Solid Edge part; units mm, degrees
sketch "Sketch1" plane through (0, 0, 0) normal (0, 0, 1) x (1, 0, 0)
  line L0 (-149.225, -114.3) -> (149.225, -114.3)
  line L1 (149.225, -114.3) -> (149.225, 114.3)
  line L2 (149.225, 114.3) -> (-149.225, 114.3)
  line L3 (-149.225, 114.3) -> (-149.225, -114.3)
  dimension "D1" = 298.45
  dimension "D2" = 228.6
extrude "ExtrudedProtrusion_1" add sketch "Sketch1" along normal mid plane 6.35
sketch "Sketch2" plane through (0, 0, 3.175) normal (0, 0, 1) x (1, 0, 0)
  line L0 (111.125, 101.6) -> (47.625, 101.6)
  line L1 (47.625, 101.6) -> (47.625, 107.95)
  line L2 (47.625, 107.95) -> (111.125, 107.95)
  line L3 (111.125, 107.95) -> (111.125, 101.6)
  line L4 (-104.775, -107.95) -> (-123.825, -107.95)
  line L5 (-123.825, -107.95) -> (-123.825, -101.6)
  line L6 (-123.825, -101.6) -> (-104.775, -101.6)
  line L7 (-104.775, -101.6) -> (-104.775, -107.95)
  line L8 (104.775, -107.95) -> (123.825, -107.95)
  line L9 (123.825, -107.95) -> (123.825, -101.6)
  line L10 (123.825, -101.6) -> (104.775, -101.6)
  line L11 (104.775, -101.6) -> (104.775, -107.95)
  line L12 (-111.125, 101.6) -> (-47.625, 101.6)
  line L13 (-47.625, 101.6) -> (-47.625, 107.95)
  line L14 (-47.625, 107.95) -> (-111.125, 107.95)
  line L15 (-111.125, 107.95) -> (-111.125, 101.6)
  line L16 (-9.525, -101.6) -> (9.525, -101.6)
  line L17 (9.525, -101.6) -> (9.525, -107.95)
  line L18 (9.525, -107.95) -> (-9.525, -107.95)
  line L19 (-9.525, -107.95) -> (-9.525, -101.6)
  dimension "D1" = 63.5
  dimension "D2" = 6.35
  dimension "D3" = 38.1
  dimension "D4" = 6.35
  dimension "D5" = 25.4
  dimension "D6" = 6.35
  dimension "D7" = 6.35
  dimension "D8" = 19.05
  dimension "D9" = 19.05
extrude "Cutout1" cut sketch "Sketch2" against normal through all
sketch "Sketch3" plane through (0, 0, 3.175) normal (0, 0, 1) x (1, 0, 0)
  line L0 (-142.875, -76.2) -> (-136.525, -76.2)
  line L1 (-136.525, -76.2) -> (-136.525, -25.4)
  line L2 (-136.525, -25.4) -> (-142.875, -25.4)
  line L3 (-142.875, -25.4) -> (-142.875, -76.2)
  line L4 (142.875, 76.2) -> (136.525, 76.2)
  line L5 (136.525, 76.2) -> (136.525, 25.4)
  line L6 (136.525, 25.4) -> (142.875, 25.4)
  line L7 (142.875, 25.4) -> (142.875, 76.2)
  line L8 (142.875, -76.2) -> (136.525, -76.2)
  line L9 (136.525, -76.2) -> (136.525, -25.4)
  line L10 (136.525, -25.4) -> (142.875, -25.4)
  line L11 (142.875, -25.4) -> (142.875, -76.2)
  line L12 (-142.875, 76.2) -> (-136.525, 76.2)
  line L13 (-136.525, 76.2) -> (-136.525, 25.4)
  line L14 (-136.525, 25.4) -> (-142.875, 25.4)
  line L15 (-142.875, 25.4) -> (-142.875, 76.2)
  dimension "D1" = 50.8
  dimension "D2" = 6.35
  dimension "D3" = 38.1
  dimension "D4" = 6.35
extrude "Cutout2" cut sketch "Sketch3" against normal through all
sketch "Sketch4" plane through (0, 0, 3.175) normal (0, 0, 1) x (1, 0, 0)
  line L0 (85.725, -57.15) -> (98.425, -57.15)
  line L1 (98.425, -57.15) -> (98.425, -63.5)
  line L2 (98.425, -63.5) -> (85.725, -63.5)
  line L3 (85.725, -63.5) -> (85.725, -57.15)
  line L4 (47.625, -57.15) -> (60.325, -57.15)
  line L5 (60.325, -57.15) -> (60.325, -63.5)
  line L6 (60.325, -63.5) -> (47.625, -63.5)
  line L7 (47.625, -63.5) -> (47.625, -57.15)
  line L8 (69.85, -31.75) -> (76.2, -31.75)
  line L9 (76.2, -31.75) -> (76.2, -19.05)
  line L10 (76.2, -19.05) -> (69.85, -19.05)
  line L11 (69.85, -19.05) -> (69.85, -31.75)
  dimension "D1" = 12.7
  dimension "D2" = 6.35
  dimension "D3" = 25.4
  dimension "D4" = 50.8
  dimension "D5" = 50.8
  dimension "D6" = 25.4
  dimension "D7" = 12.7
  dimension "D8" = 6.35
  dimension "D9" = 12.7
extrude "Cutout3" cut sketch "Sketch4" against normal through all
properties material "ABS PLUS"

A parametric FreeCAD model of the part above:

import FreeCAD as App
import Part
import Sketcher
from FreeCAD import Vector
Q = App.Units.Quantity

doc = App.newDocument("Part")
body = doc.addObject("PartDesign::Body", "Body")

sketch1 = body.newObject("Sketcher::SketchObject", "Sketch")
sketch1.AttachmentSupport = (doc.getObject("XY_Plane"), [""])
sketch1.MapMode = "FlatFace"
sketch1.addGeometry([
    Part.LineSegment(Vector(-149, 114, 0), Vector(-149, -114, 0)),
    Part.LineSegment(Vector(-149, -114, 0), Vector(149, -114, 0)),
    Part.LineSegment(Vector(149, -114, 0), Vector(149, 114, 0)),
    Part.LineSegment(Vector(149, 114, 0), Vector(-149, 114, 0)),
], False)
sketch1.addConstraint([
    Sketcher.Constraint("Coincident", 0, 2, 1, 1),
    Sketcher.Constraint("Coincident", 1, 2, 2, 1),
    Sketcher.Constraint("Coincident", 2, 2, 3, 1),
    Sketcher.Constraint("Coincident", 3, 2, 0, 1),
    Sketcher.Constraint("Vertical", 0),
    Sketcher.Constraint("Horizontal", 1),
    Sketcher.Constraint("Vertical", 2),
    Sketcher.Constraint("Horizontal", 3),
    Sketcher.Constraint("Symmetric", 0, 2, 2, 2, -1, 1),
    Sketcher.Constraint("DistanceY", 0, 2, 0, 1, Q("9 in")),
    Sketcher.Constraint("DistanceX", 0, 2, -1, 1, Q("5.875 in")),
])
pad1 = body.newObject("PartDesign::Pad", "Pad")
pad1.Profile = sketch1
pad1.Length = Q("0.25 in")
pad1.Midplane = True

sketch2 = body.newObject("Sketcher::SketchObject", "Sketch001")
sketch2.AttachmentSupport = (doc.getObject("XY_Plane"), [""])
sketch2.MapMode = "FlatFace"
sketch2.AttachmentOffset = App.Placement(Vector(0, 0, 0.125 * 25.4), App.Rotation())
sketch2.addGeometry([
    Part.LineSegment(Vector(48, 102, 0), Vector(111, 102, 0)),
    Part.LineSegment(Vector(111, 102, 0), Vector(111, 108, 0)),
    Part.LineSegment(Vector(111, 108, 0), Vector(48, 108, 0)),
    Part.LineSegment(Vector(48, 108, 0), Vector(48, 102, 0)),
    Part.LineSegment(Vector(-124, -108, 0), Vector(-105, -108, 0)),
    Part.LineSegment(Vector(-105, -108, 0), Vector(-105, -102, 0)),
    Part.LineSegment(Vector(-105, -102, 0), Vector(-124, -102, 0)),
    Part.LineSegment(Vector(-124, -102, 0), Vector(-124, -108, 0)),
    Part.LineSegment(Vector(105, -102, 0), Vector(105, -108, 0)),
    Part.LineSegment(Vector(105, -108, 0), Vector(124, -108, 0)),
    Part.LineSegment(Vector(124, -108, 0), Vector(124, -102, 0)),
    Part.LineSegment(Vector(124, -102, 0), Vector(105, -102, 0)),
    Part.LineSegment(Vector(-111, 108, 0), Vector(-111, 102, 0)),
    Part.LineSegment(Vector(-111, 102, 0), Vector(-48, 102, 0)),
    Part.LineSegment(Vector(-48, 102, 0), Vector(-48, 108, 0)),
    Part.LineSegment(Vector(-48, 108, 0), Vector(-111, 108, 0)),
    Part.LineSegment(Vector(10, -102, 0), Vector(-10, -102, 0)),
    Part.LineSegment(Vector(-10, -102, 0), Vector(-10, -108, 0)),
    Part.LineSegment(Vector(-10, -108, 0), Vector(10, -108, 0)),
    Part.LineSegment(Vector(10, -108, 0), Vector(10, -102, 0)),
], False)
sketch2.addConstraint([
    Sketcher.Constraint("Coincident", 0, 2, 1, 1),
    Sketcher.Constraint("Coincident", 1, 2, 2, 1),
    Sketcher.Constraint("Coincident", 2, 2, 3, 1),
    Sketcher.Constraint("Coincident", 3, 2, 0, 1),
    Sketcher.Constraint("Coincident", 4, 2, 5, 1),
    Sketcher.Constraint("Coincident", 5, 2, 6, 1),
    Sketcher.Constraint("Coincident", 6, 2, 7, 1),
    Sketcher.Constraint("Coincident", 7, 2, 4, 1),
    Sketcher.Constraint("Coincident", 8, 2, 9, 1),
    Sketcher.Constraint("Coincident", 9, 2, 10, 1),
    Sketcher.Constraint("Coincident", 10, 2, 11, 1),
    Sketcher.Constraint("Coincident", 11, 2, 8, 1),
    Sketcher.Constraint("Coincident", 12, 2, 13, 1),
    Sketcher.Constraint("Coincident", 13, 2, 14, 1),
    Sketcher.Constraint("Coincident", 14, 2, 15, 1),
    Sketcher.Constraint("Coincident", 15, 2, 12, 1),
    Sketcher.Constraint("Coincident", 16, 2, 17, 1),
    Sketcher.Constraint("Coincident", 17, 2, 18, 1),
    Sketcher.Constraint("Coincident", 18, 2, 19, 1),
    Sketcher.Constraint("Coincident", 19, 2, 16, 1),
    Sketcher.Constraint("Horizontal", 0),
    Sketcher.Constraint("Vertical", 1),
    Sketcher.Constraint("Horizontal", 2),
    Sketcher.Constraint("Vertical", 3),
    Sketcher.Constraint("Horizontal", 4),
    Sketcher.Constraint("Vertical", 5),
    Sketcher.Constraint("Horizontal", 6),
    Sketcher.Constraint("Vertical", 7),
    Sketcher.Constraint("Vertical", 8),
    Sketcher.Constraint("Horizontal", 9),
    Sketcher.Constraint("Vertical", 10),
    Sketcher.Constraint("Horizontal", 11),
    Sketcher.Constraint("Vertical", 12),
    Sketcher.Constraint("Horizontal", 13),
    Sketcher.Constraint("Vertical", 14),
    Sketcher.Constraint("Horizontal", 15),
    Sketcher.Constraint("Horizontal", 16),
    Sketcher.Constraint("Vertical", 17),
    Sketcher.Constraint("Horizontal", 18),
    Sketcher.Constraint("Vertical", 19),
    Sketcher.Constraint("Symmetric", 4, 2, 8, 2, -2),
    Sketcher.Constraint("Symmetric", 6, 2, 10, 2, -2),
    Sketcher.Constraint("Symmetric", 0, 2, 12, 2, -2),
    Sketcher.Constraint("Symmetric", 2, 2, 14, 2, -2),
    Sketcher.Constraint("Horizontal", 11, 2, 16, 2),
    Sketcher.Constraint("Horizontal", 9, 2, 17, 2),
    Sketcher.Constraint("Equal", 11, 16),
    Sketcher.Constraint("Equal", 3, 5),
    Sketcher.Constraint("DistanceX", 0, 1, 0, 2, Q("2.5 in")),
    Sketcher.Constraint("DistanceX", -1, 1, 0, 2, Q("4.375 in")),
    Sketcher.Constraint("DistanceX", 4, 2, -1, 1, Q("4.125 in")),
    Sketcher.Constraint("DistanceX", 6, 2, -1, 1, Q("4.875 in")),
    Sketcher.Constraint("DistanceY", -1, 1, 0, 2, Q("4 in")),
    Sketcher.Constraint("DistanceY", 5, 2, -1, 1, Q("4 in")),
    Sketcher.Constraint("DistanceY", 1, 1, 1, 2, Q("0.25 in")),
    Sketcher.Constraint("DistanceX", 6, 2, 16, 2, Q("4.5 in")),
])
pocket1 = body.newObject("PartDesign::Pocket", "Pocket")
pocket1.Profile = sketch2
pocket1.Type = "ThroughAll"

sketch3 = body.newObject("Sketcher::SketchObject", "Sketch002")
sketch3.AttachmentSupport = (doc.getObject("XY_Plane"), [""])
sketch3.MapMode = "FlatFace"
sketch3.AttachmentOffset = App.Placement(Vector(0, 0, 0.125 * 25.4), App.Rotation())
sketch3.addGeometry([
    Part.LineSegment(Vector(-143, -25, 0), Vector(-143, -76, 0)),
    Part.LineSegment(Vector(-143, -76, 0), Vector(-137, -76, 0)),
    Part.LineSegment(Vector(-137, -76, 0), Vector(-137, -25, 0)),
    Part.LineSegment(Vector(-137, -25, 0), Vector(-143, -25, 0)),
    Part.LineSegment(Vector(143, 25, 0), Vector(143, 76, 0)),
    Part.LineSegment(Vector(143, 76, 0), Vector(137, 76, 0)),
    Part.LineSegment(Vector(137, 76, 0), Vector(137, 25, 0)),
    Part.LineSegment(Vector(137, 25, 0), Vector(143, 25, 0)),
    Part.LineSegment(Vector(137, -76, 0), Vector(143, -76, 0)),
    Part.LineSegment(Vector(143, -76, 0), Vector(143, -25, 0)),
    Part.LineSegment(Vector(143, -25, 0), Vector(137, -25, 0)),
    Part.LineSegment(Vector(137, -25, 0), Vector(137, -76, 0)),
    Part.LineSegment(Vector(-137, 76, 0), Vector(-143, 76, 0)),
    Part.LineSegment(Vector(-143, 76, 0), Vector(-143, 25, 0)),
    Part.LineSegment(Vector(-143, 25, 0), Vector(-137, 25, 0)),
    Part.LineSegment(Vector(-137, 25, 0), Vector(-137, 76, 0)),
], False)
sketch3.addConstraint([
    Sketcher.Constraint("Coincident", 0, 2, 1, 1),
    Sketcher.Constraint("Coincident", 1, 2, 2, 1),
    Sketcher.Constraint("Coincident", 2, 2, 3, 1),
    Sketcher.Constraint("Coincident", 3, 2, 0, 1),
    Sketcher.Constraint("Coincident", 4, 2, 5, 1),
    Sketcher.Constraint("Coincident", 5, 2, 6, 1),
    Sketcher.Constraint("Coincident", 6, 2, 7, 1),
    Sketcher.Constraint("Coincident", 7, 2, 4, 1),
    Sketcher.Constraint("Coincident", 8, 2, 9, 1),
    Sketcher.Constraint("Coincident", 9, 2, 10, 1),
    Sketcher.Constraint("Coincident", 10, 2, 11, 1),
    Sketcher.Constraint("Coincident", 11, 2, 8, 1),
    Sketcher.Constraint("Coincident", 12, 2, 13, 1),
    Sketcher.Constraint("Coincident", 13, 2, 14, 1),
    Sketcher.Constraint("Coincident", 14, 2, 15, 1),
    Sketcher.Constraint("Coincident", 15, 2, 12, 1),
    Sketcher.Constraint("Vertical", 0),
    Sketcher.Constraint("Horizontal", 1),
    Sketcher.Constraint("Vertical", 2),
    Sketcher.Constraint("Horizontal", 3),
    Sketcher.Constraint("Vertical", 4),
    Sketcher.Constraint("Horizontal", 5),
    Sketcher.Constraint("Vertical", 6),
    Sketcher.Constraint("Horizontal", 7),
    Sketcher.Constraint("Horizontal", 8),
    Sketcher.Constraint("Vertical", 9),
    Sketcher.Constraint("Horizontal", 10),
    Sketcher.Constraint("Vertical", 11),
    Sketcher.Constraint("Horizontal", 12),
    Sketcher.Constraint("Vertical", 13),
    Sketcher.Constraint("Horizontal", 14),
    Sketcher.Constraint("Vertical", 15),
    Sketcher.Constraint("Symmetric", 0, 2, 4, 2, -1, 1),
    Sketcher.Constraint("Symmetric", 2, 2, 6, 2, -1, 1),
    Sketcher.Constraint("Symmetric", 8, 2, 12, 2, -1, 1),
    Sketcher.Constraint("Symmetric", 10, 2, 14, 2, -1, 1),
    Sketcher.Constraint("Symmetric", 0, 2, 8, 2, -2),
    Sketcher.Constraint("Symmetric", 2, 2, 10, 2, -2),
    Sketcher.Constraint("DistanceY", 0, 2, 0, 1, Q("2 in")),
    Sketcher.Constraint("DistanceX", 0, 2, -1, 1, Q("5.625 in")),
    Sketcher.Constraint("DistanceY", 0, 2, -1, 1, Q("3 in")),
    Sketcher.Constraint("DistanceX", 2, 2, 4, 2, Q("11 in")),
])
pocket2 = body.newObject("PartDesign::Pocket", "Pocket001")
pocket2.Profile = sketch3
pocket2.Type = "ThroughAll"

sketch4 = body.newObject("Sketcher::SketchObject", "Sketch003")
sketch4.AttachmentSupport = (doc.getObject("XY_Plane"), [""])
sketch4.MapMode = "FlatFace"
sketch4.AttachmentOffset = App.Placement(Vector(0, 0, 0.125 * 25.4), App.Rotation())
sketch4.addGeometry([
    Part.LineSegment(Vector(98, -57, 0), Vector(86, -57, 0)),
    Part.LineSegment(Vector(86, -57, 0), Vector(86, -64, 0)),
    Part.LineSegment(Vector(86, -64, 0), Vector(98, -64, 0)),
    Part.LineSegment(Vector(98, -64, 0), Vector(98, -57, 0)),
    Part.LineSegment(Vector(60, -57, 0), Vector(48, -57, 0)),
    Part.LineSegment(Vector(48, -57, 0), Vector(48, -64, 0)),
    Part.LineSegment(Vector(48, -64, 0), Vector(60, -64, 0)),
    Part.LineSegment(Vector(60, -64, 0), Vector(60, -57, 0)),
    Part.LineSegment(Vector(70, -19, 0), Vector(70, -32, 0)),
    Part.LineSegment(Vector(70, -32, 0), Vector(76, -32, 0)),
    Part.LineSegment(Vector(76, -32, 0), Vector(76, -19, 0)),
    Part.LineSegment(Vector(76, -19, 0), Vector(70, -19, 0)),
], False)
sketch4.addConstraint([
    Sketcher.Constraint("Coincident", 0, 2, 1, 1),
    Sketcher.Constraint("Coincident", 1, 2, 2, 1),
    Sketcher.Constraint("Coincident", 2, 2, 3, 1),
    Sketcher.Constraint("Coincident", 3, 2, 0, 1),
    Sketcher.Constraint("Coincident", 4, 2, 5, 1),
    Sketcher.Constraint("Coincident", 5, 2, 6, 1),
    Sketcher.Constraint("Coincident", 6, 2, 7, 1),
    Sketcher.Constraint("Coincident", 7, 2, 4, 1),
    Sketcher.Constraint("Coincident", 8, 2, 9, 1),
    Sketcher.Constraint("Coincident", 9, 2, 10, 1),
    Sketcher.Constraint("Coincident", 10, 2, 11, 1),
    Sketcher.Constraint("Coincident", 11, 2, 8, 1),
    Sketcher.Constraint("Horizontal", 0),
    Sketcher.Constraint("Vertical", 1),
    Sketcher.Constraint("Horizontal", 2),
    Sketcher.Constraint("Vertical", 3),
    Sketcher.Constraint("Horizontal", 4),
    Sketcher.Constraint("Vertical", 5),
    Sketcher.Constraint("Horizontal", 6),
    Sketcher.Constraint("Vertical", 7),
    Sketcher.Constraint("Vertical", 8),
    Sketcher.Constraint("Horizontal", 9),
    Sketcher.Constraint("Vertical", 10),
    Sketcher.Constraint("Horizontal", 11),
    Sketcher.Constraint("Horizontal", 3, 2, 4, 2),
    Sketcher.Constraint("Horizontal", 2, 2, 5, 2),
    Sketcher.Constraint("Equal", 2, 4),
    Sketcher.Constraint("Equal", 11, 1),
    Sketcher.Constraint("Equal", 6, 8),
    Sketcher.Constraint("DistanceX", 0, 2, 0, 1, Q("0.5 in")),
    Sketcher.Constraint("DistanceX", -1, 1, 0, 2, Q("3.375 in")),
    Sketcher.Constraint("DistanceX", -1, 1, 9, 2, Q("3 in")),
    Sketcher.Constraint("DistanceX", 4, 2, 3, 2, Q("2 in")),
    Sketcher.Constraint("DistanceY", 7, 2, 8, 2, Q("1 in")),
    Sketcher.Constraint("DistanceX", 9, 1, 9, 2, Q("0.25 in")),
    Sketcher.Constraint("DistanceY", 1, 2, -1, 1, Q("2.5 in")),
])
pocket3 = body.newObject("PartDesign::Pocket", "Pocket002")
pocket3.Profile = sketch4
pocket3.Type = "ThroughAll"

doc.recompute()
